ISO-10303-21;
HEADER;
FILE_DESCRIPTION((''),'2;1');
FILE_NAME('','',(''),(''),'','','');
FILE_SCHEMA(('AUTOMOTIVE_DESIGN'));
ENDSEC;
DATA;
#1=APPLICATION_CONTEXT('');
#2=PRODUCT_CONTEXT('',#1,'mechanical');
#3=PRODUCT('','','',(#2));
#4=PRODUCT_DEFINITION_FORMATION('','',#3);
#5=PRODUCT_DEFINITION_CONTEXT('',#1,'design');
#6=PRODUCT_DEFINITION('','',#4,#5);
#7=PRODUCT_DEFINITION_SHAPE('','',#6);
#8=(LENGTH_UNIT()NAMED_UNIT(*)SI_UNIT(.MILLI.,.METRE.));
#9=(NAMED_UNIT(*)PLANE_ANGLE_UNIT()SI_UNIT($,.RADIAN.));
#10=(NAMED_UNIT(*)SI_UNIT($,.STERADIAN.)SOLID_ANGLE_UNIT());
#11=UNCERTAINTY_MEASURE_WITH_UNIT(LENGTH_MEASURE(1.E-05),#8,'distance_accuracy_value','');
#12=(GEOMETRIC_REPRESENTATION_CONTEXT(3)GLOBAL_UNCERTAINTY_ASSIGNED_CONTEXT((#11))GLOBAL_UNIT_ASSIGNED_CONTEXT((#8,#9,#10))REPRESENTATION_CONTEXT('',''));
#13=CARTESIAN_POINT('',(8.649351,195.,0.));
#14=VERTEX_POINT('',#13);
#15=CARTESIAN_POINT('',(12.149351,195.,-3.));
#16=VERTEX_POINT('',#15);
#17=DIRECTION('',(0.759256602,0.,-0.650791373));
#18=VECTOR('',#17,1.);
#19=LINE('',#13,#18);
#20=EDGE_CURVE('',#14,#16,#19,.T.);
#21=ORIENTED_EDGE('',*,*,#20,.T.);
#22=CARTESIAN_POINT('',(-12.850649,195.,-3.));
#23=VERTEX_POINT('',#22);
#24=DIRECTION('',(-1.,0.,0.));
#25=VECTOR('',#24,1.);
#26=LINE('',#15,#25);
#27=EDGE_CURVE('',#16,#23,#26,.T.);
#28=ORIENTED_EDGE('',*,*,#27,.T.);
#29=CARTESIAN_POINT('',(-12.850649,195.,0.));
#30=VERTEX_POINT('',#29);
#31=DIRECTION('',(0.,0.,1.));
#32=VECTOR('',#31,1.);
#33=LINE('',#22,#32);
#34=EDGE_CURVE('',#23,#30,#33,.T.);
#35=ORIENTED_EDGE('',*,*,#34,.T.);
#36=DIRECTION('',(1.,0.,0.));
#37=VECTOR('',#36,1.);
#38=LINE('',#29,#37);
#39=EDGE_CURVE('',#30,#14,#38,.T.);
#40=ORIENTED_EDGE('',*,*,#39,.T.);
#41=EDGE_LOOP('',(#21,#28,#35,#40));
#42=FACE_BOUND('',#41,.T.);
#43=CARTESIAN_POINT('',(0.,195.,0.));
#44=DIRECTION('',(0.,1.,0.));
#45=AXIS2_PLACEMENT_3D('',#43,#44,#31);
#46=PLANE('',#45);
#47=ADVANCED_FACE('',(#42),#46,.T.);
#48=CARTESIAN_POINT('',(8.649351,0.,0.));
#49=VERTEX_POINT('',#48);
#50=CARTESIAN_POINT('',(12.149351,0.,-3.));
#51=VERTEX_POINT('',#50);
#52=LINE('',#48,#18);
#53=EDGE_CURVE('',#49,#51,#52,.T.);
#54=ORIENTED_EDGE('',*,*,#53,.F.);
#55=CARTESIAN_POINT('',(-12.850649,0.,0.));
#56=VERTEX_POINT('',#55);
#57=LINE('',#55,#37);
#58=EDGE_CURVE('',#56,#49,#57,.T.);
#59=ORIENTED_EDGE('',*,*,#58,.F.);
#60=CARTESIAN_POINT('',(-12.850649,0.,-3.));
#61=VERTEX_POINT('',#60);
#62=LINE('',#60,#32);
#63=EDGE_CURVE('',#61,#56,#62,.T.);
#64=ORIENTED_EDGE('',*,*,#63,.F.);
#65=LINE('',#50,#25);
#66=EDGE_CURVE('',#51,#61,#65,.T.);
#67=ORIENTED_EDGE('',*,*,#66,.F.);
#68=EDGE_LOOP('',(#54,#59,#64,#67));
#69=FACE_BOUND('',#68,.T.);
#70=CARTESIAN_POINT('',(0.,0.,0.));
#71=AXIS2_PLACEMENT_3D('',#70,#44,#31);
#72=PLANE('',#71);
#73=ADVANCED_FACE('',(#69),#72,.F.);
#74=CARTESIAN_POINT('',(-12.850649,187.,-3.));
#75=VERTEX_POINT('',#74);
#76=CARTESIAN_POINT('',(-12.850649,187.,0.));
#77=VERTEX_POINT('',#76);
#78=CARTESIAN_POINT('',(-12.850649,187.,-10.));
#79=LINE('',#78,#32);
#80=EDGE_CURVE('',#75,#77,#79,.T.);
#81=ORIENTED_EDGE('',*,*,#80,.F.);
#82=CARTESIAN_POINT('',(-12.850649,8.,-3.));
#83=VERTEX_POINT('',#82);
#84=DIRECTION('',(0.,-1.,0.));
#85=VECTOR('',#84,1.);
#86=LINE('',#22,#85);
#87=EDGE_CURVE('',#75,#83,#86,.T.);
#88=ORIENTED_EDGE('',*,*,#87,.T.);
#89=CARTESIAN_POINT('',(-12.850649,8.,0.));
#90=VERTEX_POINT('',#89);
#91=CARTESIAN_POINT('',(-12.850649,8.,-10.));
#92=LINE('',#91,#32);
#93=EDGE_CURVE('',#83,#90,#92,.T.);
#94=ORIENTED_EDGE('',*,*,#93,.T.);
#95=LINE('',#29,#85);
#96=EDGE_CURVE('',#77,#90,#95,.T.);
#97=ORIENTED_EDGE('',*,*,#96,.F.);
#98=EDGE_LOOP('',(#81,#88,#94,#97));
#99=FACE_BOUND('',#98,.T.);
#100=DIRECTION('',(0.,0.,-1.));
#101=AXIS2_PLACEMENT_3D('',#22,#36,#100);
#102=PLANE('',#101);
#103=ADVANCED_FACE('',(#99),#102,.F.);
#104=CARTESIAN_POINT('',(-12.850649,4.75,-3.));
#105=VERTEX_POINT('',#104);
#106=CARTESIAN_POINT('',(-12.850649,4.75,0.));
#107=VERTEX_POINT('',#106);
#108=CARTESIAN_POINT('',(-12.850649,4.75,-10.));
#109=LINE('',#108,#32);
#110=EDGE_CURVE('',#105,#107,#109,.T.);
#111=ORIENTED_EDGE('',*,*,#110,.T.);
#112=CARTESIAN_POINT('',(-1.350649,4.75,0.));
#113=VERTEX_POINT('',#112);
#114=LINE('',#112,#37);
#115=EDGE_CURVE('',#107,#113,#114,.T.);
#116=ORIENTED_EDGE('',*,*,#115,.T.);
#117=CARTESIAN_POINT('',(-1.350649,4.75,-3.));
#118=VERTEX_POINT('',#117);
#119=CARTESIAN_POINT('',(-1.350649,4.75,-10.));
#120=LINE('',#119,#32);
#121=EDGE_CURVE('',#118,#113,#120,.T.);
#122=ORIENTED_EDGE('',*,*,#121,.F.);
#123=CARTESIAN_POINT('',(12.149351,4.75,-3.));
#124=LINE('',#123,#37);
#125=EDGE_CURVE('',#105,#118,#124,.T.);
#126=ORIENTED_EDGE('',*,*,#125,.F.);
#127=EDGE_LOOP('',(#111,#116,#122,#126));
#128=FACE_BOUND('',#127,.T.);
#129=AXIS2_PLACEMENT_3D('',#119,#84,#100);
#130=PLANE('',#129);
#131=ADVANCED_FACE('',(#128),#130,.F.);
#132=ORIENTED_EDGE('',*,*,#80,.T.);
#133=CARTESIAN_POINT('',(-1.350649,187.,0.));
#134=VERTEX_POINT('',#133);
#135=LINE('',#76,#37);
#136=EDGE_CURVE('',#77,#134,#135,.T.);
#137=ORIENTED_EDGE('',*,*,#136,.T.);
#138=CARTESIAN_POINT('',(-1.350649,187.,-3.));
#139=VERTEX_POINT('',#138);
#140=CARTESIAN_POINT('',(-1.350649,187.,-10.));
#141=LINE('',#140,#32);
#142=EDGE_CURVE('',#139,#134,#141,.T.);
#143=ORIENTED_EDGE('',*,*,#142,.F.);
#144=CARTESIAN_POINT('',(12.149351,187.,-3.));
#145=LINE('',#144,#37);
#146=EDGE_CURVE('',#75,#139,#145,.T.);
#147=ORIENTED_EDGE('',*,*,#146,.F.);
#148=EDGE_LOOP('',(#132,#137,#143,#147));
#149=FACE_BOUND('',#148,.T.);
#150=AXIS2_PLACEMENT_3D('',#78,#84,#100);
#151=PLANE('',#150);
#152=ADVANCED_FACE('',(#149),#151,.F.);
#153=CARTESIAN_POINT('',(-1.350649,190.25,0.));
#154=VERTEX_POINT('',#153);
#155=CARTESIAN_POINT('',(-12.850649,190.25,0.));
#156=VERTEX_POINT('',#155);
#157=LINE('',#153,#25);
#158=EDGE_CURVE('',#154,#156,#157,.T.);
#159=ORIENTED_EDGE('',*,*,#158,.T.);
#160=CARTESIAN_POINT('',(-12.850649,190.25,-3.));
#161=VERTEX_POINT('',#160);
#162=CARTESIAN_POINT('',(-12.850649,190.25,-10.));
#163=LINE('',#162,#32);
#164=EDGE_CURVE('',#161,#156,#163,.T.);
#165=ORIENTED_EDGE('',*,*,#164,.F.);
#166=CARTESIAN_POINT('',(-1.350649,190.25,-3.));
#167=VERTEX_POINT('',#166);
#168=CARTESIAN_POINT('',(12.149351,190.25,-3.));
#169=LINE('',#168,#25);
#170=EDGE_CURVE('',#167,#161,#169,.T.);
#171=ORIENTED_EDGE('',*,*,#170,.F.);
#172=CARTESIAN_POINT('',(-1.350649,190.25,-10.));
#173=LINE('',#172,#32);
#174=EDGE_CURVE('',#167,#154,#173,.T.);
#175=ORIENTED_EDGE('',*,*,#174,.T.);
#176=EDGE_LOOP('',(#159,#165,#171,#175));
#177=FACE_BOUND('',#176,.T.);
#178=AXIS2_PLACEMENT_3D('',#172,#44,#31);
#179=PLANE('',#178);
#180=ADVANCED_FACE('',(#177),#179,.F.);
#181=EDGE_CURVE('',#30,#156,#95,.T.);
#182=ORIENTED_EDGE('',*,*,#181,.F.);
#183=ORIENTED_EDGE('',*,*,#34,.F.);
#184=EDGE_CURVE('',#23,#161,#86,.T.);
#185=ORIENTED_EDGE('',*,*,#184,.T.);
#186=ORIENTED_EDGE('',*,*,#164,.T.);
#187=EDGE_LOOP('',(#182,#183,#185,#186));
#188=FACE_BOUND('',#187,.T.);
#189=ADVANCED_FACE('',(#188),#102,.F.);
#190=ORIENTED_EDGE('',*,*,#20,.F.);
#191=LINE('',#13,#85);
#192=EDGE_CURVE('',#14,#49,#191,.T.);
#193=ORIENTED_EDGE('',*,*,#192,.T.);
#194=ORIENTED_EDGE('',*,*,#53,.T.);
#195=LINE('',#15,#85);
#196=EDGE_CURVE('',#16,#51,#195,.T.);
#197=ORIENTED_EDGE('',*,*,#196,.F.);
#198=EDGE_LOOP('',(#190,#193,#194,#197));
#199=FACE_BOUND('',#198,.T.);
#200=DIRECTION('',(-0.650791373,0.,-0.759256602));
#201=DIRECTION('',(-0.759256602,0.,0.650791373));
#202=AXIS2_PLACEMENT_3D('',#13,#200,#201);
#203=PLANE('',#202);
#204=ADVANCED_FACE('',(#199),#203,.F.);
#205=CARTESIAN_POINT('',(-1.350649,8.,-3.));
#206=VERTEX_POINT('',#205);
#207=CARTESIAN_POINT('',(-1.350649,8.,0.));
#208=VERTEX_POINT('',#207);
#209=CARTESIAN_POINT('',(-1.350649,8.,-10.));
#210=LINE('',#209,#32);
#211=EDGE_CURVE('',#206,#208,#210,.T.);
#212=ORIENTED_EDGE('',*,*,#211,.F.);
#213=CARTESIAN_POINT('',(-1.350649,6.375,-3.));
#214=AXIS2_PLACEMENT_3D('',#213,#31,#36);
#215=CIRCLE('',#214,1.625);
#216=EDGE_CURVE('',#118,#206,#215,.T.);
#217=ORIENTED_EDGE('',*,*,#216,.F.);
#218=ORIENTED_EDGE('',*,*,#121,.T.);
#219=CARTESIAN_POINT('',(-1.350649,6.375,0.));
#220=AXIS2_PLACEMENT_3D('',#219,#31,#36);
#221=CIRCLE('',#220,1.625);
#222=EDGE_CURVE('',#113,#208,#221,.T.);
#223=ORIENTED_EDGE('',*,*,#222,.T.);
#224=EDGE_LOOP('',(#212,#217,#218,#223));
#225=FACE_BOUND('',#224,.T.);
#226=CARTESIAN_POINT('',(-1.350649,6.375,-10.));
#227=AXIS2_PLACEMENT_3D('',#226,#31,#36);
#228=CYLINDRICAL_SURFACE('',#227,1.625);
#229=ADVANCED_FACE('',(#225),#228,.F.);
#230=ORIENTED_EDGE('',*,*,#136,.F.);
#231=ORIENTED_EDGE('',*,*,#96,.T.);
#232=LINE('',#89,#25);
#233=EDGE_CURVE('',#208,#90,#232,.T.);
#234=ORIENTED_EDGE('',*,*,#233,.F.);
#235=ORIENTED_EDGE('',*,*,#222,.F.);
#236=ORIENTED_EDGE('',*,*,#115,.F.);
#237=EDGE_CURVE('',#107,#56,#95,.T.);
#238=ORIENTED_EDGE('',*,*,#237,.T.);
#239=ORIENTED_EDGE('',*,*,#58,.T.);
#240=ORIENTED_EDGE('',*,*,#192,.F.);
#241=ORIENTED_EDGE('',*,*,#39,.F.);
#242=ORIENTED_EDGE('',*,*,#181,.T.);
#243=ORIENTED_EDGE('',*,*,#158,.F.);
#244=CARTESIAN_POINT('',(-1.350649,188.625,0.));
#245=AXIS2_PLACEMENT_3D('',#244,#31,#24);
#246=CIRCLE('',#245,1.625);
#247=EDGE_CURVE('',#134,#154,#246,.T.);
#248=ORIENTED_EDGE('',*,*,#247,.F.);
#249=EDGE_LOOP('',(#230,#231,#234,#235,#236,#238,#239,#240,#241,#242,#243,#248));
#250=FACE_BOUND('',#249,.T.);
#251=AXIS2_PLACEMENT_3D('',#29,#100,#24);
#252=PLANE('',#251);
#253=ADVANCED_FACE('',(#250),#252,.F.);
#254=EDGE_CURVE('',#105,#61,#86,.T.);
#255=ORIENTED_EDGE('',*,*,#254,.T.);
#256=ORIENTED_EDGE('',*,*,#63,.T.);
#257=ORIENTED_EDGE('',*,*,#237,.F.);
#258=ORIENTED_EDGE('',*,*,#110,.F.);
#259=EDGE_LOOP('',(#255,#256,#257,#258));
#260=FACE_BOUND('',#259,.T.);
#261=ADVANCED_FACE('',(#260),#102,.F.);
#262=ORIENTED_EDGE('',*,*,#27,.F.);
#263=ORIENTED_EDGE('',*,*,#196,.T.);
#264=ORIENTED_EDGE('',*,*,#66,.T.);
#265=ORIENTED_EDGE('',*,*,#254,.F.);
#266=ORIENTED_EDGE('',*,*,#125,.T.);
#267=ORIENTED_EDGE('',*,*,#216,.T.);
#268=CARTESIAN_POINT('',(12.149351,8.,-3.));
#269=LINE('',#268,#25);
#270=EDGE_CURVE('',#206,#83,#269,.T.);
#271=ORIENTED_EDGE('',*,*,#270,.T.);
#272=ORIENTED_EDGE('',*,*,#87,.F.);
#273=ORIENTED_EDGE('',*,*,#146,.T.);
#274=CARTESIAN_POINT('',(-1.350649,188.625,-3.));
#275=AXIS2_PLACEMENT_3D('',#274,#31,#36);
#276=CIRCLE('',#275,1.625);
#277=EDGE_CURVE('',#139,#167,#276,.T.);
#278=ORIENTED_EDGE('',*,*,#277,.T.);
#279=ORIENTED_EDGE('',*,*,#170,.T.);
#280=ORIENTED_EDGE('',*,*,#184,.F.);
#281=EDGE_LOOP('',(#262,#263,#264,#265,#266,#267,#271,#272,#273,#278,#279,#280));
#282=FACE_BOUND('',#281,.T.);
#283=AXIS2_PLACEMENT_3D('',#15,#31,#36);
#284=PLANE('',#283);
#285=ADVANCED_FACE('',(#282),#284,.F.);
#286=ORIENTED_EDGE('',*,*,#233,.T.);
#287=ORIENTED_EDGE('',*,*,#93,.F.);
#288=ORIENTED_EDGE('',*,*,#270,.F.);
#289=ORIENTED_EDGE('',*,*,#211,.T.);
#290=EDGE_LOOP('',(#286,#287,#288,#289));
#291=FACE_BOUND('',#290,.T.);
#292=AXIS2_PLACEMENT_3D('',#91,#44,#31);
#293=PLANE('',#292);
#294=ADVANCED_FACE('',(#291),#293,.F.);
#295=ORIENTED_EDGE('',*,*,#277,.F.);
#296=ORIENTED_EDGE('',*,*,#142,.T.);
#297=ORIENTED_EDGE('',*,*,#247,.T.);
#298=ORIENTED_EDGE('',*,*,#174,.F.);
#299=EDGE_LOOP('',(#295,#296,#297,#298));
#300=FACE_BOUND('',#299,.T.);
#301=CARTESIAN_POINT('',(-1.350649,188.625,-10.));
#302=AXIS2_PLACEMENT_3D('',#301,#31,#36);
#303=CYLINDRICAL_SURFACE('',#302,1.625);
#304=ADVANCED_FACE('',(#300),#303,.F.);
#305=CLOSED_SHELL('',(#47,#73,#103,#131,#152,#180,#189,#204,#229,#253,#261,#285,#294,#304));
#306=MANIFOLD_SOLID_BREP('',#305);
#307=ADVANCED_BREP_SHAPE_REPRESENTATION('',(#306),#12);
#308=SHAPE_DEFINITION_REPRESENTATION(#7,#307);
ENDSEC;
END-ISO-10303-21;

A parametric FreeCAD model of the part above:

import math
import FreeCAD as App
import Part
import Sketcher

V = App.Vector


def add_polygon(sketch, points):
    """Adds a closed chain of lines whose ends are joined by coincident constraints."""
    first, n = sketch.GeometryCount, len(points)
    for a, b in zip(points, points[1:] + points[:1]):
        sketch.addGeometry(Part.LineSegment(App.Vector(*a, 0), App.Vector(*b, 0)), False)
    for i in range(n):
        sketch.addConstraint(Sketcher.Constraint("Coincident", first + i, 2, first + (i + 1) % n, 1))

doc = App.newDocument("Part")
params = doc.addObject("Spreadsheet::Sheet", "Params")
for row, (alias, value) in enumerate([
    ("sketch1_width", "25 mm"),
    ("sketch1_height", "3 mm"),
    ("sketch1_width2", "21.5 mm"),
    ("pad1_length", "195 mm"),
    ("sketch2_width", "11.5 mm"),
    ("pocket1_length", "10 mm"),
], start=1):
    params.set(f"A{row}", alias)
    params.set(f"B{row}", "=" + value)
    params.setAlias(f"B{row}", alias)

body = doc.addObject("PartDesign::Body", "Body")

sketch1 = body.newObject("Sketcher::SketchObject", "Sketch")
sketch1.AttachmentSupport = (doc.getObject("XZ_Plane"), [""])
sketch1.MapMode = "FlatFace"
add_polygon(sketch1, [(-12.9, 0), (8.6, 0), (12.1, -3), (-12.9, -3)])
sketch1.addConstraint(Sketcher.Constraint("Horizontal", 0))
sketch1.addConstraint(Sketcher.Constraint("Horizontal", 2))
sketch1.addConstraint(Sketcher.Constraint("Vertical", 3))
sketch1.addConstraint(Sketcher.Constraint("PointOnObject", 0, 2, -1))
sketch1.addConstraint(Sketcher.Constraint("DistanceX", 2, 2, 2, 1, 25.0))
sketch1.addConstraint(Sketcher.Constraint("DistanceY", 3, 1, 3, 2, 3.0))
sketch1.addConstraint(Sketcher.Constraint("DistanceX", 0, 1, 0, 2, 21.5))
sketch1.addConstraint(Sketcher.Constraint("DistanceX", -1, 1, 0, 2, 8.649351))
sketch1.setExpression("Constraints[8]", "Params.sketch1_width")
sketch1.setExpression("Constraints[9]", "Params.sketch1_height")
sketch1.setExpression("Constraints[10]", "Params.sketch1_width2")
pad1 = body.newObject("PartDesign::Pad", "Pad")
pad1.Profile = sketch1
pad1.setExpression("Length", "Params.pad1_length")
pad1.Reversed = True

sketch2 = body.newObject("Sketcher::SketchObject", "Sketch001")
sketch2.AttachmentSupport = (doc.getObject("XY_Plane"), [""])
sketch2.MapMode = "FlatFace"
sketch2.addGeometry(Part.LineSegment(V(-12.9, 4.8, 0), V(-1.4, 4.8, 0)), False)
sketch2.addGeometry(Part.ArcOfCircle(Part.Circle(V(-1.4, 6.4, 0), V(0, 0, 1), 1.6), math.radians(-90), math.radians(90)), False)
sketch2.addGeometry(Part.LineSegment(V(-1.4, 8, 0), V(-12.9, 8, 0)), False)
sketch2.addGeometry(Part.LineSegment(V(-12.9, 8, 0), V(-12.9, 4.8, 0)), False)
sketch2.addGeometry(Part.LineSegment(V(-12.9, 187, 0), V(-1.4, 187, 0)), False)
sketch2.addGeometry(Part.ArcOfCircle(Part.Circle(V(-1.4, 188.6, 0), V(0, 0, 1), 1.6), math.radians(-90), math.radians(90)), False)
sketch2.addGeometry(Part.LineSegment(V(-1.4, 190.2, 0), V(-12.9, 190.2, 0)), False)
sketch2.addGeometry(Part.LineSegment(V(-12.9, 190.2, 0), V(-12.9, 187, 0)), False)
sketch2.addConstraint(Sketcher.Constraint("Tangent", 0, 2, 1, 1))
sketch2.addConstraint(Sketcher.Constraint("Tangent", 1, 2, 2, 1))
sketch2.addConstraint(Sketcher.Constraint("Coincident", 2, 2, 3, 1))
sketch2.addConstraint(Sketcher.Constraint("Coincident", 3, 2, 0, 1))
sketch2.addConstraint(Sketcher.Constraint("Tangent", 4, 2, 5, 1))
sketch2.addConstraint(Sketcher.Constraint("Tangent", 5, 2, 6, 1))
sketch2.addConstraint(Sketcher.Constraint("Coincident", 6, 2, 7, 1))
sketch2.addConstraint(Sketcher.Constraint("Coincident", 7, 2, 4, 1))
sketch2.addConstraint(Sketcher.Constraint("Horizontal", 0))
sketch2.addConstraint(Sketcher.Constraint("Horizontal", 2))
sketch2.addConstraint(Sketcher.Constraint("Vertical", 3))
sketch2.addConstraint(Sketcher.Constraint("Horizontal", 4))
sketch2.addConstraint(Sketcher.Constraint("Horizontal", 6))
sketch2.addConstraint(Sketcher.Constraint("Vertical", 7))
sketch2.addConstraint(Sketcher.Constraint("Equal", 1, 5))
sketch2.addConstraint(Sketcher.Constraint("Vertical", 1, 3, 5, 3))
sketch2.addConstraint(Sketcher.Constraint("Vertical", 3, 2, 6, 2))
sketch2.addConstraint(Sketcher.Constraint("DistanceX", 0, 1, 0, 2, 11.5))
sketch2.addConstraint(Sketcher.Constraint("DistanceY", -1, 1, 1, 2, 8.0))
sketch2.addConstraint(Sketcher.Constraint("DistanceY", -1, 1, 4, 2, 187.0))
sketch2.addConstraint(Sketcher.Constraint("Radius", 1, 1.625))
sketch2.addConstraint(Sketcher.Constraint("DistanceX", 1, 3, -1, 1, 1.350649))
sketch2.setExpression("Constraints[17]", "Params.sketch2_width")
pocket1 = body.newObject("PartDesign::Pocket", "Pocket")
pocket1.Profile = sketch2
pocket1.setExpression("Length", "Params.pocket1_length")

doc.recompute()
